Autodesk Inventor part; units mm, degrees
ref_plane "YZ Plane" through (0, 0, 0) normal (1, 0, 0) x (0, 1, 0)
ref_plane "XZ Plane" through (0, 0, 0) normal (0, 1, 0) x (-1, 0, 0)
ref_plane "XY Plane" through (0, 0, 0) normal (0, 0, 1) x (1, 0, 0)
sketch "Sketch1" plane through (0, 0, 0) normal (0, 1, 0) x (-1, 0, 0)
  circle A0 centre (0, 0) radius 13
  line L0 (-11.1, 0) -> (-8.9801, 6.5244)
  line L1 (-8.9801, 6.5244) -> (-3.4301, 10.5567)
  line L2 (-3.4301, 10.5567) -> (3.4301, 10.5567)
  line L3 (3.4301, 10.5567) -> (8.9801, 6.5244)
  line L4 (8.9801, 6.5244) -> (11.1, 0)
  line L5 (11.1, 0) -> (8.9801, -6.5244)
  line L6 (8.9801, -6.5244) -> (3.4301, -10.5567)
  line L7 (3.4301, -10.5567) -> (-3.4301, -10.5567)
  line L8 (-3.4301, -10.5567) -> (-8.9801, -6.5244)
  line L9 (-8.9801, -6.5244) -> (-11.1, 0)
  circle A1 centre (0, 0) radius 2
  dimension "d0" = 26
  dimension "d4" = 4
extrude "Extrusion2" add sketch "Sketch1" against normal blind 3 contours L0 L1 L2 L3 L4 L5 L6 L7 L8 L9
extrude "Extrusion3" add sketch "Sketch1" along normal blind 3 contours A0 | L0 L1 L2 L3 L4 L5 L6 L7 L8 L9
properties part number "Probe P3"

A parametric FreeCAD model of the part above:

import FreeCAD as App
import Part
import Sketcher
Q = App.Units.Quantity


def add_polygon(sketch, points):
    """Adds a closed chain of lines whose ends are joined by coincident constraints."""
    first, n = sketch.GeometryCount, len(points)
    for a, b in zip(points, points[1:] + points[:1]):
        sketch.addGeometry(Part.LineSegment(App.Vector(*a, 0), App.Vector(*b, 0)), False)
    for i in range(n):
        sketch.addConstraint(Sketcher.Constraint("Coincident", first + i, 2, first + (i + 1) % n, 1))

doc = App.newDocument("Part")
body = doc.addObject("PartDesign::Body", "Body")

sketch1 = body.newObject("Sketcher::SketchObject", "Sketch")
sketch1.AttachmentSupport = (doc.getObject("XZ_Plane"), [""])
sketch1.MapMode = "FlatFace"
add_polygon(sketch1, [(8.9801, 6.5244), (11.1, 0), (8.9801, -6.5244), (3.4301, -10.5567), (-3.4301, -10.5567), (-8.9801, -6.5244), (-11.1, 0), (-8.9801, 6.5244), (-3.4301, 10.5567), (3.4301, 10.5567)])
sketch1.addGeometry(Part.Circle(App.Vector(0, 0, 0), App.Vector(0, 0, 1), 2), False)
sketch1.addConstraint(Sketcher.Constraint("Horizontal", 3))
sketch1.addConstraint(Sketcher.Constraint("Horizontal", 8))
sketch1.addConstraint(Sketcher.Constraint("Coincident", 10, 3, -1, 1))
sketch1.addConstraint(Sketcher.Constraint("Symmetric", 0, 2, 5, 2, -1, 1))
sketch1.addConstraint(Sketcher.Constraint("Symmetric", 1, 2, 6, 2, -1, 1))
sketch1.addConstraint(Sketcher.Constraint("Symmetric", 2, 2, 7, 2, -1, 1))
sketch1.addConstraint(Sketcher.Constraint("Symmetric", 4, 2, 9, 2, -1, 1))
sketch1.addConstraint(Sketcher.Constraint("Symmetric", 1, 2, 4, 2, -2))
sketch1.addConstraint(Sketcher.Constraint("PointOnObject", 0, 2, -1))
sketch1.addConstraint(Sketcher.Constraint("Parallel", 4, 9))
sketch1.addConstraint(Sketcher.Constraint("Vertical", 3, 2, 7, 2))
sketch1.addConstraint(Sketcher.Constraint("Equal", 1, 2))
sketch1.addConstraint(Sketcher.Constraint("Diameter", 10, Q("4 mm")))
sketch1.addConstraint(Sketcher.Constraint("Angle", 0, Q("-72 deg")))
sketch1.addConstraint(Sketcher.Constraint("Angle", 2, Q("-144 deg")))
sketch1.addConstraint(Sketcher.Constraint("DistanceX", -1, 1, 0, 2, Q("11.1 mm")))
sketch1.addConstraint(Sketcher.Constraint("DistanceX", -1, 1, 1, 2, Q("8.98 mm")))
pad1 = body.newObject("PartDesign::Pad", "Pad")
pad1.Profile = sketch1
pad1.Length = 3

sketch2 = body.newObject("Sketcher::SketchObject", "Sketch001")
sketch2.AttachmentSupport = (doc.getObject("XZ_Plane"), [""])
sketch2.MapMode = "FlatFace"
sketch2.addGeometry(Part.Circle(App.Vector(0, 0, 0), App.Vector(0, 0, 1), 13), False)
sketch2.addGeometry(Part.Circle(App.Vector(0, 0, 0), App.Vector(0, 0, 1), 2), False)
sketch2.addConstraint(Sketcher.Constraint("Coincident", 0, 3, -1, 1))
sketch2.addConstraint(Sketcher.Constraint("Coincident", 1, 3, -1, 1))
sketch2.addConstraint(Sketcher.Constraint("Diameter", 0, Q("26 mm")))
sketch2.addConstraint(Sketcher.Constraint("Diameter", 1, Q("4 mm")))
pad2 = body.newObject("PartDesign::Pad", "Pad001")
pad2.Profile = sketch2
pad2.Length = 3
pad2.Reversed = True

doc.recompute()
